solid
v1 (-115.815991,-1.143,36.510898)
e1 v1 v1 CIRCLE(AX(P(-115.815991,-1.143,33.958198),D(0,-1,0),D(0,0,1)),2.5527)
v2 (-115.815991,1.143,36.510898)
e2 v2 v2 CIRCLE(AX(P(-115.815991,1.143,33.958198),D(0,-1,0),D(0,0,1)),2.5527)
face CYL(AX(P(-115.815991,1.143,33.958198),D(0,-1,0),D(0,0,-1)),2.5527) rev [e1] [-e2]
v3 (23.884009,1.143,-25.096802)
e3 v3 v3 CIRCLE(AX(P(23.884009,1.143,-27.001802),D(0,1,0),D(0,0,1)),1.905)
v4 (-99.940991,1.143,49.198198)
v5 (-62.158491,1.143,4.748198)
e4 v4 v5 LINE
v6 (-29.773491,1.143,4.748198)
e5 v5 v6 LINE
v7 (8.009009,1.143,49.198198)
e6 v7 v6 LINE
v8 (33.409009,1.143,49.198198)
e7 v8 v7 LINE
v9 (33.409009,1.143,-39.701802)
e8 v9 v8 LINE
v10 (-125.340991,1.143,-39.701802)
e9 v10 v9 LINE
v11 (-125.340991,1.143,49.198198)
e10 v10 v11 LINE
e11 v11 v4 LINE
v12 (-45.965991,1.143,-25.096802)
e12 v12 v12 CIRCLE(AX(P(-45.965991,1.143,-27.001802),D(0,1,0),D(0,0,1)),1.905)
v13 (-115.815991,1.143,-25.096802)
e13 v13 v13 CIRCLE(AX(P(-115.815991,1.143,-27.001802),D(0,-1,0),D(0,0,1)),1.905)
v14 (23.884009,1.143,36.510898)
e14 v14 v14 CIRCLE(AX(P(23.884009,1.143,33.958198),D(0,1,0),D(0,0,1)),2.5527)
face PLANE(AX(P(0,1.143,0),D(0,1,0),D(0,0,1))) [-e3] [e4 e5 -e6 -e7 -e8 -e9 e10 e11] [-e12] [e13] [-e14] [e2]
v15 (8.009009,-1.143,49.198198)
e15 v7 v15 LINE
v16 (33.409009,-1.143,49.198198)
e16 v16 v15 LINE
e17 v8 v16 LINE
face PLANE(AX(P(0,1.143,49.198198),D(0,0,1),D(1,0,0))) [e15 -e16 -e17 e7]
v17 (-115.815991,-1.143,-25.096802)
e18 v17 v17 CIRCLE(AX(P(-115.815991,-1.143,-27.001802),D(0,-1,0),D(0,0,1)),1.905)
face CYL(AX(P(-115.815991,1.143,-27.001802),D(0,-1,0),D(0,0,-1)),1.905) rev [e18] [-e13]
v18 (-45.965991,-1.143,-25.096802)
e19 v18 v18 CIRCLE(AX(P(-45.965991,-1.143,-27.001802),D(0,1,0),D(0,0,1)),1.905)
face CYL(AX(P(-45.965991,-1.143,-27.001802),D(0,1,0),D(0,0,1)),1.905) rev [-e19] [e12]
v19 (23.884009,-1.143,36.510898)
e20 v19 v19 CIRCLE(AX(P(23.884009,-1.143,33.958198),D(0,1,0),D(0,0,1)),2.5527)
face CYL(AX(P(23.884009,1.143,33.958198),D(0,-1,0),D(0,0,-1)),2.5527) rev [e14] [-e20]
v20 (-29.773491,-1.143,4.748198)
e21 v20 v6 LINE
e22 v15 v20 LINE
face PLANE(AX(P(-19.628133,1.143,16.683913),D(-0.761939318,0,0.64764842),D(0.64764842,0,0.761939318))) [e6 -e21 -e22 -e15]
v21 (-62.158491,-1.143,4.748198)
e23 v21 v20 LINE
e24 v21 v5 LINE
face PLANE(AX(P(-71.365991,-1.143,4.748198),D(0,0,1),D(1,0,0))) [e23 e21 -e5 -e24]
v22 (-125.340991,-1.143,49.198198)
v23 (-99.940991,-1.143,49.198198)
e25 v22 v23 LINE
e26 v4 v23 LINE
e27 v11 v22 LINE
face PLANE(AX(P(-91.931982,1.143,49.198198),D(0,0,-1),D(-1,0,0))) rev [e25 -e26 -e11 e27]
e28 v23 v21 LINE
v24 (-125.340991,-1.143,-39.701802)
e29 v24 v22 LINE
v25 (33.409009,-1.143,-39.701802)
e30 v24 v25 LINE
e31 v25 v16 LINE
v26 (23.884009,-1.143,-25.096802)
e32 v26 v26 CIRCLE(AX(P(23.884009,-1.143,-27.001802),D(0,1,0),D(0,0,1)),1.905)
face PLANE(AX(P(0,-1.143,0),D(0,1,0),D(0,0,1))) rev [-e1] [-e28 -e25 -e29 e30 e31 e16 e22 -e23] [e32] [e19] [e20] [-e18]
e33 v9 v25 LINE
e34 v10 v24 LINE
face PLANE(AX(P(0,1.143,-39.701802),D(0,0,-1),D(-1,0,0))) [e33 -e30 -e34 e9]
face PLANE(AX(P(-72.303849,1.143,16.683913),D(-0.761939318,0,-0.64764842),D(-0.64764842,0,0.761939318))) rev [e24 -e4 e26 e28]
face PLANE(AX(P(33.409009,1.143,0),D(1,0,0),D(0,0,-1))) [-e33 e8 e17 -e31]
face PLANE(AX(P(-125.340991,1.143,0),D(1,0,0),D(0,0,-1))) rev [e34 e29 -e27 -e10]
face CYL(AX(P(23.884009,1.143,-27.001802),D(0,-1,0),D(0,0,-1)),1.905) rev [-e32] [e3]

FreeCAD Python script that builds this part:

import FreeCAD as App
import Part
import Sketcher

V = App.Vector
Q = App.Units.Quantity


def add_polygon(sketch, points):
    """Adds a closed chain of lines whose ends are joined by coincident constraints."""
    first, n = sketch.GeometryCount, len(points)
    for a, b in zip(points, points[1:] + points[:1]):
        sketch.addGeometry(Part.LineSegment(App.Vector(*a, 0), App.Vector(*b, 0)), False)
    for i in range(n):
        sketch.addConstraint(Sketcher.Constraint("Coincident", first + i, 2, first + (i + 1) % n, 1))

doc = App.newDocument("Part")
body = doc.addObject("PartDesign::Body", "Body")

sketch1 = doc.addObject("Sketcher::SketchObject", "Sketch")
body.addObject(sketch1)
sketch1.AttachmentSupport = (doc.XZ_Plane, [""])
sketch1.MapMode = "FlatFace"
add_polygon(sketch1, [(33.409009, -39.701802), (-45.965991, -39.701802), (-45.965991, -14.301802), (8.009009, 49.198198), (33.409009, 49.198198)])
sketch1.addGeometry(Part.Circle(V(23.884009, 33.958198, 0), V(0, 0, 1), 2.5527), False)
sketch1.addGeometry(Part.Circle(V(23.884009, -27.001802, 0), V(0, 0, 1), 1.905), False)
sketch1.addConstraint([
    Sketcher.Constraint("Horizontal", 0),
    Sketcher.Constraint("Vertical", 1),
    Sketcher.Constraint("Horizontal", 3),
    Sketcher.Constraint("Vertical", 4),
    Sketcher.Constraint("Vertical", 5, 3, 6, 3),
    Sketcher.Constraint("Equal", 3, 1),
    Sketcher.Constraint("Diameter", 6, Q("0.15 in")),
    Sketcher.Constraint("DistanceX", 3, 1, 3, 2, Q("1 in")),
    Sketcher.Constraint("Diameter", 5, Q("0.201 in")),
    Sketcher.Constraint("DistanceY", 4, 2, 4, 1, Q("3.5 in")),
    Sketcher.Constraint("DistanceY", 6, 3, 2, 2, Q("3 in")),
    Sketcher.Constraint("DistanceY", 6, 3, 5, 3, Q("2.4 in")),
    Sketcher.Constraint("DistanceX", 0, 2, 0, 1, Q("3.125 in")),
    Sketcher.Constraint("DistanceX", 0, 2, 6, 3, Q("2.75 in")),
    Sketcher.Constraint("DistanceY", -1, 1, 5, 3, Q("33.958198 mm")),
    Sketcher.Constraint("DistanceX", -1, 1, 5, 3, Q("23.884009 mm")),
])
pad1 = doc.addObject("PartDesign::Pad", "Pad")
body.addObject(pad1)
pad1.Profile = sketch1
pad1.Length = Q("0.09 in")
pad1.Midplane = True
doc.recompute()

datumplane = doc.addObject("PartDesign::Plane", "DatumPlane")
body.addObject(datumplane)
datumplane.AttachmentSupport = (doc.YZ_Plane, [""])
datumplane.MapMode = "FlatFace"
datumplane.AttachmentOffset = App.Placement(V(0, 0, -45.965991), App.Rotation())
mirrored = doc.addObject("PartDesign::Mirrored", "Mirrored")
body.addObject(mirrored)
mirrored.Originals = [pad1]
mirrored.MirrorPlane = (datumplane, [""])
body.Tip = mirrored

sketch2 = doc.addObject("Sketcher::SketchObject", "Sketch001")
body.addObject(sketch2)
sketch2.AttachmentSupport = (doc.XZ_Plane, [""])
sketch2.MapMode = "FlatFace"
sketch2.AttachmentOffset = App.Placement(V(0, 0, -0.045 * 25.4), App.Rotation())
sketch2.addGeometry(Part.Circle(V(-45.965991, -27.001802, 0), V(0, 0, 1), 1.905), False)
sketch2.addConstraint([
    Sketcher.Constraint("Diameter", 0, Q("0.15 in")),
    Sketcher.Constraint("DistanceY", 0, 3, -1, 1, Q("27.001802 mm")),
    Sketcher.Constraint("DistanceX", 0, 3, -1, 1, Q("45.965991 mm")),
])
pocket1 = doc.addObject("PartDesign::Pocket", "Pocket")
body.addObject(pocket1)
pocket1.Profile = sketch2
pocket1.Type = "ThroughAll"
pocket1.Reversed = True

sketch3 = doc.addObject("Sketcher::SketchObject", "Sketch002")
body.addObject(sketch3)
sketch3.AttachmentSupport = (doc.XZ_Plane, [""])
sketch3.MapMode = "FlatFace"
sketch3.AttachmentOffset = App.Placement(V(0, 0, -0.045 * 25.4), App.Rotation())
add_polygon(sketch3, [(-71.365991, -14.301802), (-71.365991, 4.748198), (-20.565991, 4.748198), (-20.565991, -14.301802)])
sketch3.addConstraint([
    Sketcher.Constraint("Vertical", 0),
    Sketcher.Constraint("Horizontal", 1),
    Sketcher.Constraint("Vertical", 2),
    Sketcher.Constraint("Horizontal", 3),
    Sketcher.Constraint("DistanceX", 1, 1, 1, 2, Q("2 in")),
    Sketcher.Constraint("DistanceY", 0, 1, 0, 2, Q("0.75 in")),
    Sketcher.Constraint("DistanceY", -1, 1, 0, 2, Q("4.748198 mm")),
    Sketcher.Constraint("DistanceX", 0, 2, -1, 1, Q("71.365991 mm")),
])
pad2 = doc.addObject("PartDesign::Pad", "Pad001")
body.addObject(pad2)
pad2.Profile = sketch3
pad2.Length = Q("0.09 in")

doc.recompute()
